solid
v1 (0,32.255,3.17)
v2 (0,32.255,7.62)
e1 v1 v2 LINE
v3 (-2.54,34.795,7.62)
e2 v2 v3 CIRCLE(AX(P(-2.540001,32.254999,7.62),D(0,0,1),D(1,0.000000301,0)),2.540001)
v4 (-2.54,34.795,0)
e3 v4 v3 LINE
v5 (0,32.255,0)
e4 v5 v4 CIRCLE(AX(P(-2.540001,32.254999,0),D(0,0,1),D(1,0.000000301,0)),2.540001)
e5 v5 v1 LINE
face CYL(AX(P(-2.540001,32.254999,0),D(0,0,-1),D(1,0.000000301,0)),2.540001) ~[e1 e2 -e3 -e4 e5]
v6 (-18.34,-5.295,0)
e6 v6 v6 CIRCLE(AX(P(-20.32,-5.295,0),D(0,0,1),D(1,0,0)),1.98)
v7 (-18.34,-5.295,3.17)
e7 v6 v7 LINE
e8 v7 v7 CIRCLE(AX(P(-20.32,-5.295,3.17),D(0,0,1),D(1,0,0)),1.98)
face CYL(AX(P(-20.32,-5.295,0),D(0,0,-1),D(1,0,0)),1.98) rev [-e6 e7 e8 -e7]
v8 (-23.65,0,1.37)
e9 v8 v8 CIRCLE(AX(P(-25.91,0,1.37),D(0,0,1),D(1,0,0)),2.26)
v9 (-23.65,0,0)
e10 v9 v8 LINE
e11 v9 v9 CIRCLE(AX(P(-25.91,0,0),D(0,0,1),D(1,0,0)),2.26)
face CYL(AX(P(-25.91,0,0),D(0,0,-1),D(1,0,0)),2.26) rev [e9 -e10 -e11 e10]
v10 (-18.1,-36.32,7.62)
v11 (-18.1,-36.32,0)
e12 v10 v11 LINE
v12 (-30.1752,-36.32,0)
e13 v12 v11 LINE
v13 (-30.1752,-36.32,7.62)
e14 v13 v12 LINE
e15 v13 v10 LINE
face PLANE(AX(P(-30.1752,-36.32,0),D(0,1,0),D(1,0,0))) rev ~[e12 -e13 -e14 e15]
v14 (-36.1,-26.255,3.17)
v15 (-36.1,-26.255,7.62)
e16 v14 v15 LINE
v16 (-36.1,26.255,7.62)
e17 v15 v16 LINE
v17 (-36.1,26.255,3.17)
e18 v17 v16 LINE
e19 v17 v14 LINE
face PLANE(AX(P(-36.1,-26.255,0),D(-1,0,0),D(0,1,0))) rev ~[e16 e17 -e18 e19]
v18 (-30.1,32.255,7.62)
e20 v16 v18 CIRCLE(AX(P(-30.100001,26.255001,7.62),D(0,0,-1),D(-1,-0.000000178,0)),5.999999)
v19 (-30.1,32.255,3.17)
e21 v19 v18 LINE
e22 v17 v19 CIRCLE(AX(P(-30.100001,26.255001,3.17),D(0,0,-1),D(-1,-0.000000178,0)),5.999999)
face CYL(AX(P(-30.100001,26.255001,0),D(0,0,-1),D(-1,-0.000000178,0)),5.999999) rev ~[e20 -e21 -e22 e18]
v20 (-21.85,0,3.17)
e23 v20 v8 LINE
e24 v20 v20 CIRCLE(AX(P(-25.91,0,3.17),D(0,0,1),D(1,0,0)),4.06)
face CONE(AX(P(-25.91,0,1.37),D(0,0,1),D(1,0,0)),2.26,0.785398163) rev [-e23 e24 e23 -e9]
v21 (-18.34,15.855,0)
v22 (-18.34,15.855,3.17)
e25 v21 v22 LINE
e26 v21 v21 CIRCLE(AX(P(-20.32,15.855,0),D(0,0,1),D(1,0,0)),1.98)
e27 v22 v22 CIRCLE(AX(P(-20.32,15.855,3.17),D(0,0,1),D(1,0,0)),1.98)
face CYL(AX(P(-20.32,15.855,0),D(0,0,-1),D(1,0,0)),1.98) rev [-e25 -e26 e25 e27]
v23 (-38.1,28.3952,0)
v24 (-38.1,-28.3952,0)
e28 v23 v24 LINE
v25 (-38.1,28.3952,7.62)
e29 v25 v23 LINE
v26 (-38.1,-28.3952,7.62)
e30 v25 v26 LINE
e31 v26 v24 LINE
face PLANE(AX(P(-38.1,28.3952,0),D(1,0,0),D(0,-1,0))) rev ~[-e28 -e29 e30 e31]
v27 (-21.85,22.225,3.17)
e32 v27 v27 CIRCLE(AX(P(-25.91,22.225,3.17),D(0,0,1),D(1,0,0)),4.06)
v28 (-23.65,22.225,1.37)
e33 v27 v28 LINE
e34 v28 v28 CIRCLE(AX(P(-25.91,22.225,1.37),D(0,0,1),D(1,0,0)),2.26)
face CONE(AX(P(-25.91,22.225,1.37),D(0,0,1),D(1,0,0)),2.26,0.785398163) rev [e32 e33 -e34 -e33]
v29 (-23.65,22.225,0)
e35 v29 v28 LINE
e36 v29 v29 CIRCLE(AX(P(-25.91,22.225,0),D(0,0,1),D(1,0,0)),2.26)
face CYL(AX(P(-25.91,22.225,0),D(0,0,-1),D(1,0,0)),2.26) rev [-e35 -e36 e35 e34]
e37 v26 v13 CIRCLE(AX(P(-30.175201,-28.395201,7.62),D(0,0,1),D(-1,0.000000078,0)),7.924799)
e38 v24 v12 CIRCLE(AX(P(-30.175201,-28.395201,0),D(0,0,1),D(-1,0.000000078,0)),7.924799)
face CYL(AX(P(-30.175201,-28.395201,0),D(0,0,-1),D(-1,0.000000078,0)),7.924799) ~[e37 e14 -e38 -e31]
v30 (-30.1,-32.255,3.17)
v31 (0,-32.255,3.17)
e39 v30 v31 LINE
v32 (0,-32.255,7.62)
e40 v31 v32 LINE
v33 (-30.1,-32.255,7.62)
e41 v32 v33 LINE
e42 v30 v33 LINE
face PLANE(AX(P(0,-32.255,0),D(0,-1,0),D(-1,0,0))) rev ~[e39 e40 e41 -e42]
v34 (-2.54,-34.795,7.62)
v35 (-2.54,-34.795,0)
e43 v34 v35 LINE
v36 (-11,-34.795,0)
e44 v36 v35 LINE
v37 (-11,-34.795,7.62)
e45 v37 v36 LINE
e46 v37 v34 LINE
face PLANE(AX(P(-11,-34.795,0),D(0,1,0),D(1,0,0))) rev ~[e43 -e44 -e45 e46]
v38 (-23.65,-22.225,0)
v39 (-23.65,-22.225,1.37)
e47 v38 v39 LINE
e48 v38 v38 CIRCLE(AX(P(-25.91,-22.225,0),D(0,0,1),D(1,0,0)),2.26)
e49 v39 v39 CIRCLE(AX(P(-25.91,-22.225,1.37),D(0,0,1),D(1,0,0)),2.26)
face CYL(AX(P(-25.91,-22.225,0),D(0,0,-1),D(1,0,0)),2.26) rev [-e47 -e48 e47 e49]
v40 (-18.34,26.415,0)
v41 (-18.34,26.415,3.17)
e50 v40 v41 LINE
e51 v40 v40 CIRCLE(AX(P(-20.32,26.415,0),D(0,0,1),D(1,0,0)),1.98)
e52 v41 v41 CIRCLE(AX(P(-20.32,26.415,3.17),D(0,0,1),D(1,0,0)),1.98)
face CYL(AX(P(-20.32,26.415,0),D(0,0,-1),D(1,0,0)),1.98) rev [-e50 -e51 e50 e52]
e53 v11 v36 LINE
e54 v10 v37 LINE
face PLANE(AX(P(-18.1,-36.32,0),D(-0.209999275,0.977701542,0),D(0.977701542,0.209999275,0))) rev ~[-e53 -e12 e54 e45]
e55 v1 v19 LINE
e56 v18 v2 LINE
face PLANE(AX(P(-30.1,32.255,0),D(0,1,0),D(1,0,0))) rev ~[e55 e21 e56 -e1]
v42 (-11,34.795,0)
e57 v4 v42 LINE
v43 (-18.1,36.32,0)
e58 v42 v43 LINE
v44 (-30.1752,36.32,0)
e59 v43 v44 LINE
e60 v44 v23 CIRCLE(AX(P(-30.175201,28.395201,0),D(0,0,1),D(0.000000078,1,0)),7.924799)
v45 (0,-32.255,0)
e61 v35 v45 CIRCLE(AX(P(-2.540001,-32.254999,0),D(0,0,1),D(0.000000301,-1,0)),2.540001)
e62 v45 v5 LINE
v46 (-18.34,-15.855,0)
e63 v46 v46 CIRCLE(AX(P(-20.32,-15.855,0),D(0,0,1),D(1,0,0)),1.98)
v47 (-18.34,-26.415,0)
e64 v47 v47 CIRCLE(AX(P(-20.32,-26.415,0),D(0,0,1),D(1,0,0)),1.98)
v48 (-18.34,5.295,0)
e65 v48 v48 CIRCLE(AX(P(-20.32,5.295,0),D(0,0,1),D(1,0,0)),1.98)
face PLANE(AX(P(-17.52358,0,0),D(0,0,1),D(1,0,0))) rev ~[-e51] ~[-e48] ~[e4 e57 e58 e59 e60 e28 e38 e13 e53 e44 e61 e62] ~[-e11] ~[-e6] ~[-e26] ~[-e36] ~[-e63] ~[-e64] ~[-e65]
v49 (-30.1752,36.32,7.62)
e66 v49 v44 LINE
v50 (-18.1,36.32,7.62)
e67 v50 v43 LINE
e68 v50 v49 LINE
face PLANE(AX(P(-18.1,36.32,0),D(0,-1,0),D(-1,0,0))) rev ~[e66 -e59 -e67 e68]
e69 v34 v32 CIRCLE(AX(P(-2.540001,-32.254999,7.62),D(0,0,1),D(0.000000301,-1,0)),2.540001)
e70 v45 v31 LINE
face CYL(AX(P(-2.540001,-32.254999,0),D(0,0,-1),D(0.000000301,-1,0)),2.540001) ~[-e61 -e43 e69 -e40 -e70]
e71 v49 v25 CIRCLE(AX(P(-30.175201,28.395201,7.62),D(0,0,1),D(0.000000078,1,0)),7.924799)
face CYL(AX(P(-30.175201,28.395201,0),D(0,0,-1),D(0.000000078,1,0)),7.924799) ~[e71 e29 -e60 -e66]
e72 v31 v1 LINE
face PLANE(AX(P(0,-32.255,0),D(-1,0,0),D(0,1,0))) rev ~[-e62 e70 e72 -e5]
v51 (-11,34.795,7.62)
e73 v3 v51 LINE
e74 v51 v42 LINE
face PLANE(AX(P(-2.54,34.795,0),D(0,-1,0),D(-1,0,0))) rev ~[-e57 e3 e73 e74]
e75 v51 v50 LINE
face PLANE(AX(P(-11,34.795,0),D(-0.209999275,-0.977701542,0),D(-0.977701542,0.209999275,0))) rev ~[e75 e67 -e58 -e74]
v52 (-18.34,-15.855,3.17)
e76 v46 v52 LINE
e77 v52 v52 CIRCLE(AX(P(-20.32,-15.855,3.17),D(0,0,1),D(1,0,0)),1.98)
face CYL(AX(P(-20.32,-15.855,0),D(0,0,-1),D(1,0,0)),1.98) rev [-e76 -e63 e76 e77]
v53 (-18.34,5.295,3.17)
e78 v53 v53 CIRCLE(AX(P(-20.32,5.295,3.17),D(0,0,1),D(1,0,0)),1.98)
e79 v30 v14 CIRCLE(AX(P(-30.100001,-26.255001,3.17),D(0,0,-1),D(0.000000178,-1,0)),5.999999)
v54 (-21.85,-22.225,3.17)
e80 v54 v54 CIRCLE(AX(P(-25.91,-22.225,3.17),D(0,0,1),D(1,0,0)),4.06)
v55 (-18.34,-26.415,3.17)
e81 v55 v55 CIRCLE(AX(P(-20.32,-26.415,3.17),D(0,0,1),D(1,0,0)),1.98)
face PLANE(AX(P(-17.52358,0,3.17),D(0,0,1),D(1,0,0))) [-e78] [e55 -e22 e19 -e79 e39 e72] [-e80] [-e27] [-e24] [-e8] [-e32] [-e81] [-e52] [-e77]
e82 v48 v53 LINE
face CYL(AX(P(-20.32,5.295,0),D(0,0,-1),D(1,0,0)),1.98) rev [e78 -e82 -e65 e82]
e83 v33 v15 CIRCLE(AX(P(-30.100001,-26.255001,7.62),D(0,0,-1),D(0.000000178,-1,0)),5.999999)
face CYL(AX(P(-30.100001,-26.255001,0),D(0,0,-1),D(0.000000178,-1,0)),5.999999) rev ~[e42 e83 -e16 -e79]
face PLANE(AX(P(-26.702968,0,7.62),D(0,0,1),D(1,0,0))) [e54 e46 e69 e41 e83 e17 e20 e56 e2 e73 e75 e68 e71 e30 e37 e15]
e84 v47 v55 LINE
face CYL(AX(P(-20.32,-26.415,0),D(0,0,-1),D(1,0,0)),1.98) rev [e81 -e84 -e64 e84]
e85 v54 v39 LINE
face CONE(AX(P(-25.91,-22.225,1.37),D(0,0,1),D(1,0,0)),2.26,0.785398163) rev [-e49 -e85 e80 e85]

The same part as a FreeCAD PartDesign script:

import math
import FreeCAD as App
import Part
import Sketcher
Q = App.Units.Quantity


def edges_at(feature, points):
    """Names of the edges that pass closest to the given points."""
    edges = feature.Shape.Edges
    near = lambda p: min(range(len(edges)), key=lambda i: edges[i].distToShape(Part.Vertex(*p))[0])
    return sorted({f"Edge{near(p) + 1}" for p in points})

doc = App.newDocument("Part")
body = doc.addObject("PartDesign::Body", "Body")

sketch1 = body.newObject("Sketcher::SketchObject", "Sketch")
sketch1.AttachmentSupport = (doc.getObject("XY_Plane"), [""])
sketch1.MapMode = "FlatFace"
sketch1.addGeometry([
    Part.LineSegment(App.Vector(0, -32.3, 0), App.Vector(0, 32.3, 0)),
    Part.ArcOfCircle(Part.Circle(App.Vector(-2.5, 32.3, 0), App.Vector(0, 0, 1), 2.5), math.radians(0), math.radians(90)),
    Part.LineSegment(App.Vector(-2.5, 34.8, 0), App.Vector(-11, 34.8, 0)),
    Part.LineSegment(App.Vector(-11, 34.8, 0), App.Vector(-18.1, 36.3, 0)),
    Part.LineSegment(App.Vector(-18.1, 36.3, 0), App.Vector(-30.2, 36.3, 0)),
    Part.ArcOfCircle(Part.Circle(App.Vector(-30.2, 28.4, 0), App.Vector(0, 0, 1), 7.9), math.radians(90), math.radians(180)),
    Part.LineSegment(App.Vector(-38.1, 28.4, 0), App.Vector(-38.1, -28.4, 0)),
    Part.ArcOfCircle(Part.Circle(App.Vector(-30.2, -28.4, 0), App.Vector(0, 0, 1), 7.9), math.radians(180), math.radians(270)),
    Part.LineSegment(App.Vector(-30.2, -36.3, 0), App.Vector(-18.1, -36.3, 0)),
    Part.LineSegment(App.Vector(-18.1, -36.3, 0), App.Vector(-11, -34.8, 0)),
    Part.LineSegment(App.Vector(-11, -34.8, 0), App.Vector(-2.5, -34.8, 0)),
    Part.ArcOfCircle(Part.Circle(App.Vector(-2.5, -32.3, 0), App.Vector(0, 0, 1), 2.5), math.radians(-90), math.radians(0)),
    Part.Circle(App.Vector(-25.9, -22.2, 0), App.Vector(0, 0, 1), 2.3),
    Part.Circle(App.Vector(-20.3, -26.4, 0), App.Vector(0, 0, 1), 2),
    Part.Circle(App.Vector(-20.3, -15.9, 0), App.Vector(0, 0, 1), 2),
    Part.Circle(App.Vector(-20.3, -5.3, 0), App.Vector(0, 0, 1), 2),
    Part.Circle(App.Vector(-25.9, 0, 0), App.Vector(0, 0, 1), 2.3),
    Part.Circle(App.Vector(-25.9, 22.2, 0), App.Vector(0, 0, 1), 2.3),
    Part.Circle(App.Vector(-20.3, 5.3, 0), App.Vector(0, 0, 1), 2),
    Part.Circle(App.Vector(-20.3, 15.9, 0), App.Vector(0, 0, 1), 2),
    Part.Circle(App.Vector(-20.3, 26.4, 0), App.Vector(0, 0, 1), 2),
], False)
sketch1.addConstraint([
    Sketcher.Constraint("Tangent", 0, 2, 1, 1),
    Sketcher.Constraint("Tangent", 1, 2, 2, 1),
    Sketcher.Constraint("Coincident", 2, 2, 3, 1),
    Sketcher.Constraint("Coincident", 3, 2, 4, 1),
    Sketcher.Constraint("Tangent", 4, 2, 5, 1),
    Sketcher.Constraint("Tangent", 5, 2, 6, 1),
    Sketcher.Constraint("Tangent", 6, 2, 7, 1),
    Sketcher.Constraint("Tangent", 7, 2, 8, 1),
    Sketcher.Constraint("Coincident", 8, 2, 9, 1),
    Sketcher.Constraint("Coincident", 9, 2, 10, 1),
    Sketcher.Constraint("Tangent", 10, 2, 11, 1),
    Sketcher.Constraint("Tangent", 11, 2, 0, 1),
    Sketcher.Constraint("Vertical", 0),
    Sketcher.Constraint("Horizontal", 2),
    Sketcher.Constraint("Horizontal", 4),
    Sketcher.Constraint("Vertical", 6),
    Sketcher.Constraint("Horizontal", 8),
    Sketcher.Constraint("Horizontal", 10),
    Sketcher.Constraint("Equal", 5, 7),
    Sketcher.Constraint("Equal", 1, 11),
    Sketcher.Constraint("Equal", 13, 14),
    Sketcher.Constraint("Equal", 14, 15),
    Sketcher.Constraint("Equal", 12, 16),
    Sketcher.Constraint("Equal", 16, 17),
    Sketcher.Constraint("Equal", 15, 18),
    Sketcher.Constraint("Equal", 18, 19),
    Sketcher.Constraint("Equal", 19, 20),
    Sketcher.Constraint("Symmetric", 0, 2, 11, 2, -1, 1),
    Sketcher.Constraint("Symmetric", 12, 3, 17, 3, -1),
    Sketcher.Constraint("Symmetric", 15, 3, 18, 3, -1),
    Sketcher.Constraint("Symmetric", 14, 3, 19, 3, -1),
    Sketcher.Constraint("Symmetric", 13, 3, 20, 3, -1),
    Sketcher.Constraint("Symmetric", 3, 2, 8, 2, -1),
    Sketcher.Constraint("PointOnObject", 16, 3, -1),
    Sketcher.Constraint("Vertical", 13, 3, 14, 3),
    Sketcher.Constraint("Vertical", 14, 3, 15, 3),
    Sketcher.Constraint("Vertical", 12, 3, 16, 3),
    Sketcher.Constraint("Vertical", 2, 2, 9, 2),
    Sketcher.Constraint("Radius", 1, Q("0.1 in")),
    Sketcher.Constraint("Radius", 5, Q("0.312 in")),
    Sketcher.Constraint("DistanceX", 13, 3, -1, 1, Q("0.8 in")),
    Sketcher.Constraint("DistanceX", 5, 2, -1, 1, Q("1.5 in")),
    Sketcher.Constraint("Diameter", 12, Q("4.52 mm")),
    Sketcher.Constraint("Diameter", 13, Q("3.96 mm")),
    Sketcher.Constraint("DistanceY", 12, 3, -1, 1, Q("0.875 in")),
    Sketcher.Constraint("DistanceX", 2, 2, 2, 1, Q("8.46 mm")),
    Sketcher.Constraint("DistanceX", 4, 2, 4, 1, Q("12.0752 mm")),
    Sketcher.Constraint("DistanceY", 0, 1, 0, 2, Q("64.51 mm")),
    Sketcher.Constraint("DistanceY", 6, 2, 6, 1, Q("56.7904 mm")),
    Sketcher.Constraint("DistanceX", 12, 3, -1, 1, Q("25.91 mm")),
    Sketcher.Constraint("DistanceY", 13, 3, -1, 1, Q("26.415 mm")),
    Sketcher.Constraint("DistanceY", 14, 3, -1, 1, Q("15.855 mm")),
    Sketcher.Constraint("DistanceY", 15, 3, -1, 1, Q("5.295 mm")),
])
pad1 = body.newObject("PartDesign::Pad", "Pad")
pad1.Profile = sketch1
pad1.Length = 3.17

sketch2 = body.newObject("Sketcher::SketchObject", "Sketch001")
sketch2.AttachmentSupport = (doc.getObject("XY_Plane"), [""])
sketch2.MapMode = "FlatFace"
sketch2.addGeometry([
    Part.LineSegment(App.Vector(-30.1, 32.3, 0), App.Vector(0, 32.3, 0)),
    Part.ArcOfCircle(Part.Circle(App.Vector(-2.5, 32.3, 0), App.Vector(0, 0, 1), 2.5), math.radians(0), math.radians(90)),
    Part.LineSegment(App.Vector(-2.5, 34.8, 0), App.Vector(-11, 34.8, 0)),
    Part.LineSegment(App.Vector(-11, 34.8, 0), App.Vector(-18.1, 36.3, 0)),
    Part.LineSegment(App.Vector(-18.1, 36.3, 0), App.Vector(-30.2, 36.3, 0)),
    Part.ArcOfCircle(Part.Circle(App.Vector(-30.2, 28.4, 0), App.Vector(0, 0, 1), 7.9), math.radians(90), math.radians(180)),
    Part.LineSegment(App.Vector(-38.1, 28.4, 0), App.Vector(-38.1, -28.4, 0)),
    Part.ArcOfCircle(Part.Circle(App.Vector(-30.2, -28.4, 0), App.Vector(0, 0, 1), 7.9), math.radians(180), math.radians(270)),
    Part.LineSegment(App.Vector(-30.2, -36.3, 0), App.Vector(-18.1, -36.3, 0)),
    Part.LineSegment(App.Vector(-18.1, -36.3, 0), App.Vector(-11, -34.8, 0)),
    Part.LineSegment(App.Vector(-11, -34.8, 0), App.Vector(-2.5, -34.8, 0)),
    Part.ArcOfCircle(Part.Circle(App.Vector(-2.5, -32.3, 0), App.Vector(0, 0, 1), 2.5), math.radians(-90), math.radians(0)),
    Part.LineSegment(App.Vector(0, -32.3, 0), App.Vector(-30.1, -32.3, 0)),
    Part.ArcOfCircle(Part.Circle(App.Vector(-30.1, -26.3, 0), App.Vector(0, 0, 1), 6), math.radians(180), math.radians(270)),
    Part.LineSegment(App.Vector(-36.1, -26.3, 0), App.Vector(-36.1, 26.3, 0)),
    Part.ArcOfCircle(Part.Circle(App.Vector(-30.1, 26.3, 0), App.Vector(0, 0, 1), 6), math.radians(90), math.radians(180)),
], False)
sketch2.addConstraint([
    Sketcher.Constraint("Coincident", 0, 2, 1, 1),
    Sketcher.Constraint("Tangent", 1, 2, 2, 1),
    Sketcher.Constraint("Coincident", 2, 2, 3, 1),
    Sketcher.Constraint("Coincident", 3, 2, 4, 1),
    Sketcher.Constraint("Tangent", 4, 2, 5, 1),
    Sketcher.Constraint("Tangent", 5, 2, 6, 1),
    Sketcher.Constraint("Tangent", 6, 2, 7, 1),
    Sketcher.Constraint("Tangent", 7, 2, 8, 1),
    Sketcher.Constraint("Coincident", 8, 2, 9, 1),
    Sketcher.Constraint("Coincident", 9, 2, 10, 1),
    Sketcher.Constraint("Tangent", 10, 2, 11, 1),
    Sketcher.Constraint("Coincident", 11, 2, 12, 1),
    Sketcher.Constraint("Tangent", 12, 2, 13, 2),
    Sketcher.Constraint("Tangent", 13, 1, 14, 1),
    Sketcher.Constraint("Tangent", 14, 2, 15, 2),
    Sketcher.Constraint("Tangent", 15, 1, 0, 1),
    Sketcher.Constraint("Horizontal", 0),
    Sketcher.Constraint("Horizontal", 2),
    Sketcher.Constraint("Horizontal", 4),
    Sketcher.Constraint("Vertical", 6),
    Sketcher.Constraint("Horizontal", 8),
    Sketcher.Constraint("Horizontal", 10),
    Sketcher.Constraint("Horizontal", 12),
    Sketcher.Constraint("Vertical", 14),
    Sketcher.Constraint("Equal", 5, 7),
    Sketcher.Constraint("Equal", 1, 11),
    Sketcher.Constraint("Equal", 13, 15),
    Sketcher.Constraint("Symmetric", 0, 2, 11, 2, -1, 1),
    Sketcher.Constraint("Symmetric", 1, 3, 11, 3, -1),
    Sketcher.Constraint("Symmetric", 3, 2, 8, 2, -1),
    Sketcher.Constraint("Horizontal", 1, 3, 0, 2),
    Sketcher.Constraint("Vertical", 2, 2, 9, 2),
    Sketcher.Constraint("Radius", 1, Q("0.1 in")),
    Sketcher.Constraint("Radius", 5, Q("0.312 in")),
    Sketcher.Constraint("DistanceX", 5, 2, -1, 1, Q("1.5 in")),
    Sketcher.Constraint("Radius", 13, Q("5.999999 mm")),
    Sketcher.Constraint("DistanceX", 0, 1, 0, 2, Q("30.1 mm")),
    Sketcher.Constraint("DistanceX", 2, 2, 2, 1, Q("8.46 mm")),
    Sketcher.Constraint("DistanceX", 4, 2, 4, 1, Q("12.0752 mm")),
    Sketcher.Constraint("DistanceY", 6, 2, 6, 1, Q("56.7904 mm")),
    Sketcher.Constraint("DistanceY", 14, 1, 14, 2, Q("52.51 mm")),
])
pad2 = body.newObject("PartDesign::Pad", "Pad001")
pad2.Profile = sketch2
pad2.Length = Q("0.3 in")
doc.recompute()

chamfer = body.newObject("PartDesign::Chamfer", "Chamfer")
chamfer.Base = (pad2, edges_at(pad2, [(-28.17, -22.225, 3.17), (-28.17, 0, 3.17), (-28.17, 22.225, 3.17)]))
chamfer.Size = 1.8

doc.recompute()
